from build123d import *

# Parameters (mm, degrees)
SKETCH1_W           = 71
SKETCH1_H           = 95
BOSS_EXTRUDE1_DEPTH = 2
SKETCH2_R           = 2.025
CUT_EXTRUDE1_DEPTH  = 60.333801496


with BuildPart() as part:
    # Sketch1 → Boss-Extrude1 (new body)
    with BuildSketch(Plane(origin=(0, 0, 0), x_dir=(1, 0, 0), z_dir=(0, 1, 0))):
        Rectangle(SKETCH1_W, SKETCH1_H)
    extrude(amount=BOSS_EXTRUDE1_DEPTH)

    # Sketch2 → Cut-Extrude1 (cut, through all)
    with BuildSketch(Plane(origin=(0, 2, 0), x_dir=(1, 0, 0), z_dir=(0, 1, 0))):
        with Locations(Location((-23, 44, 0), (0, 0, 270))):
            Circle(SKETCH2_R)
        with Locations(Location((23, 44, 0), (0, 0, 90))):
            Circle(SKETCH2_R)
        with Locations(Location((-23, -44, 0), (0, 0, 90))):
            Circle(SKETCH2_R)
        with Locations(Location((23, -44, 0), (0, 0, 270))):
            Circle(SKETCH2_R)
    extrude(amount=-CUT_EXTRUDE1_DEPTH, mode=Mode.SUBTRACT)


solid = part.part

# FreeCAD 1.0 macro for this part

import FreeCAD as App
import Part
import Sketcher
Q = App.Units.Quantity


def add_polygon(sketch, points):
    """Adds a closed chain of lines whose ends are joined by coincident constraints."""
    first, n = sketch.GeometryCount, len(points)
    for a, b in zip(points, points[1:] + points[:1]):
        sketch.addGeometry(Part.LineSegment(App.Vector(*a, 0), App.Vector(*b, 0)), False)
    for i in range(n):
        sketch.addConstraint(Sketcher.Constraint("Coincident", first + i, 2, first + (i + 1) % n, 1))

doc = App.newDocument("Part")
body = doc.addObject("PartDesign::Body", "Body")

# Sketch on XZ plane
sketch1 = body.newObject("Sketcher::SketchObject", "Sketch")
sketch1.AttachmentSupport = (doc.getObject("XZ_Plane"), [""])
sketch1.MapMode = "FlatFace"
add_polygon(sketch1, [(-36, -48), (-36, 48), (36, 48), (36, -48)])  # lines 0-3
sketch1.addConstraint(Sketcher.Constraint("Vertical", 0))
sketch1.addConstraint(Sketcher.Constraint("Horizontal", 1))
sketch1.addConstraint(Sketcher.Constraint("Vertical", 2))
sketch1.addConstraint(Sketcher.Constraint("Horizontal", 3))
sketch1.addConstraint(Sketcher.Constraint("Symmetric", 0, 2, 2, 2, -1, 1))
sketch1.addConstraint(Sketcher.Constraint("DistanceX", 1, 1, 1, 2, Q("71 mm")))
sketch1.addConstraint(Sketcher.Constraint("DistanceY", 0, 1, 0, 2, Q("95 mm")))
pad1 = body.newObject("PartDesign::Pad", "Pad")
pad1.Profile = sketch1
pad1.Length = 2
pad1.Reversed = True

# Sketch on XZ plane
sketch2 = body.newObject("Sketcher::SketchObject", "Sketch001")
sketch2.AttachmentSupport = (doc.getObject("XZ_Plane"), [""])
sketch2.MapMode = "FlatFace"
sketch2.AttachmentOffset = App.Placement(App.Vector(0, 0, -2), App.Rotation())
sketch2.addGeometry(Part.Circle(App.Vector(-23, -44, 0), App.Vector(0, 0, 1), 2), False)
sketch2.addGeometry(Part.Circle(App.Vector(23, -44, 0), App.Vector(0, 0, 1), 2), False)
sketch2.addGeometry(Part.Circle(App.Vector(-23, 44, 0), App.Vector(0, 0, 1), 2), False)
sketch2.addGeometry(Part.Circle(App.Vector(23, 44, 0), App.Vector(0, 0, 1), 2), False)
sketch2.addConstraint(Sketcher.Constraint("Equal", 0, 1))
sketch2.addConstraint(Sketcher.Constraint("Equal", 1, 2))
sketch2.addConstraint(Sketcher.Constraint("Equal", 2, 3))
sketch2.addConstraint(Sketcher.Constraint("Symmetric", 1, 3, 2, 3, -1, 1))
sketch2.addConstraint(Sketcher.Constraint("Symmetric", 0, 3, 3, 3, -1, 1))
sketch2.addConstraint(Sketcher.Constraint("Symmetric", 0, 3, 1, 3, -2))
sketch2.addConstraint(Sketcher.Constraint("Diameter", 0, Q("4.05 mm")))
sketch2.addConstraint(Sketcher.Constraint("DistanceX", 0, 3, -1, 1, Q("23 mm")))
sketch2.addConstraint(Sketcher.Constraint("DistanceY", 0, 3, -1, 1, Q("44 mm")))
pocket1 = body.newObject("PartDesign::Pocket", "Pocket")
pocket1.Profile = sketch2
pocket1.Type = "ThroughAll"
pocket1.Reversed = True

doc.recompute()
